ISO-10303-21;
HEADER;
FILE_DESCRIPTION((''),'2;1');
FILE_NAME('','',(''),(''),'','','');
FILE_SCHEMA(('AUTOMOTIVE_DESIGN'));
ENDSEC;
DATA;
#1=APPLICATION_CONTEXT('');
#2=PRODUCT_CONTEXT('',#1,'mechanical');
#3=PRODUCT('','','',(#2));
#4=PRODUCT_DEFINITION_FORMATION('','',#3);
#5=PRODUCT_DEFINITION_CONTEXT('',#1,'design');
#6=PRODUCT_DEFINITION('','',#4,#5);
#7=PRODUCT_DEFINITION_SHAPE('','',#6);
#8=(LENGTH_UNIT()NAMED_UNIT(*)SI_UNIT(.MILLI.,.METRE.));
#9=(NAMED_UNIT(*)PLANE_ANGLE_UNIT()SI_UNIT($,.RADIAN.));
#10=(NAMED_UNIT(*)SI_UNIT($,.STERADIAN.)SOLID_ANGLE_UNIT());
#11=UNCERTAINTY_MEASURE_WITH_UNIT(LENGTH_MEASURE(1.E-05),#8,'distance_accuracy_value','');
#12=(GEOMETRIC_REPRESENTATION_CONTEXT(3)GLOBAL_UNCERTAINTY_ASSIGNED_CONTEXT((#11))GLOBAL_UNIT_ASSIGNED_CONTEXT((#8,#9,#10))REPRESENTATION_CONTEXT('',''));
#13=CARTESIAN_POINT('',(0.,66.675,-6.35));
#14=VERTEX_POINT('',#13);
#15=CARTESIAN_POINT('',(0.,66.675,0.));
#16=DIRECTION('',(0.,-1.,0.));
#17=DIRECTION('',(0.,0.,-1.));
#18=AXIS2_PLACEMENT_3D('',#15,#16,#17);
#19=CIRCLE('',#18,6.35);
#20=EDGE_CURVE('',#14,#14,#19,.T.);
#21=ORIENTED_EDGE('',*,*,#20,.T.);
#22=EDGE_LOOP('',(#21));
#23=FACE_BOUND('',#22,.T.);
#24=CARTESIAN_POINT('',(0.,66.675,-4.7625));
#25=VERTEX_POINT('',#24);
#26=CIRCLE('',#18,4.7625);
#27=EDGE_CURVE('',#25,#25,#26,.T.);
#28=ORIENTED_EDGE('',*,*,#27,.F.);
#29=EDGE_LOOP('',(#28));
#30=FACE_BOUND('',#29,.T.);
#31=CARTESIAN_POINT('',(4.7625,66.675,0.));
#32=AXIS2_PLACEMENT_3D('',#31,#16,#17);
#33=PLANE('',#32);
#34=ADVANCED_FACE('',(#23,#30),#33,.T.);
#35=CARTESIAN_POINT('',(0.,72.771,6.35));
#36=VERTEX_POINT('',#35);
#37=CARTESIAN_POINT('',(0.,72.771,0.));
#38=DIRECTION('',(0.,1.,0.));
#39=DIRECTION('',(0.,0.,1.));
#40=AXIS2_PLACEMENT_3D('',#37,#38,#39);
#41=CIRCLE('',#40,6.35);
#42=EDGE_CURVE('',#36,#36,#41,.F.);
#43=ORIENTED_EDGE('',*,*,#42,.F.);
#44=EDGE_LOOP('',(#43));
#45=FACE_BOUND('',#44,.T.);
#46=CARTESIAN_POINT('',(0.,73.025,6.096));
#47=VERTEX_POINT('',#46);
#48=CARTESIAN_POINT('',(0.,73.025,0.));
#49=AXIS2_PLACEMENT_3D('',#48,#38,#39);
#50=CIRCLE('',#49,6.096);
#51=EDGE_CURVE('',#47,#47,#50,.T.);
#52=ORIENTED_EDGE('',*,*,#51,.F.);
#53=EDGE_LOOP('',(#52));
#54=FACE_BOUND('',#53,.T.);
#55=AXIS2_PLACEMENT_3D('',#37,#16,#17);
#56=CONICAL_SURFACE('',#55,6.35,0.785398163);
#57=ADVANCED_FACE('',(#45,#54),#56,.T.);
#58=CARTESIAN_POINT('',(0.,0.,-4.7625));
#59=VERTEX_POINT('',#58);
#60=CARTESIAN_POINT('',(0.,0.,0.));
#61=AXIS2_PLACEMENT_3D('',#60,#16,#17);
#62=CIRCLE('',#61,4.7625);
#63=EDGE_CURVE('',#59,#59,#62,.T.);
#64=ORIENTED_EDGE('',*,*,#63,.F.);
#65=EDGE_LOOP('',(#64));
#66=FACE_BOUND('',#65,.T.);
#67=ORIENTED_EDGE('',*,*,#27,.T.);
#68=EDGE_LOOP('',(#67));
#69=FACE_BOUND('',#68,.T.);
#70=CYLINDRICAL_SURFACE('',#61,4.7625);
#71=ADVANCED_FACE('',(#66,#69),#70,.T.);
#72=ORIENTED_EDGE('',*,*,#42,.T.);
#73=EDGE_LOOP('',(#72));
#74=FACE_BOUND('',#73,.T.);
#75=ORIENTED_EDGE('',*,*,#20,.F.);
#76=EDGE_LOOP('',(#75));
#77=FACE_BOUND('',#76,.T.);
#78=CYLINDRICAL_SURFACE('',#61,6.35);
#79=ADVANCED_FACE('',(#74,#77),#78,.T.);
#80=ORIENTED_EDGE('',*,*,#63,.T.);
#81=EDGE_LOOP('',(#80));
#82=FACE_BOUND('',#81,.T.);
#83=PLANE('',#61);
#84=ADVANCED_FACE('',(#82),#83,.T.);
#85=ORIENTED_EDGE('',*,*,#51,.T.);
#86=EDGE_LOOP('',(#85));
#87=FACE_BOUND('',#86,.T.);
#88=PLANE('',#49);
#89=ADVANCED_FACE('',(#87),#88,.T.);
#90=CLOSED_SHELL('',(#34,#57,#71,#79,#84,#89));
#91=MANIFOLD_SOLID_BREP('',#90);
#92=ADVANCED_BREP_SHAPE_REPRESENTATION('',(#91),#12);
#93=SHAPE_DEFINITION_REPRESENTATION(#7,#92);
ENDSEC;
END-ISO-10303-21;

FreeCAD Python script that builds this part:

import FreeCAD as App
import Part
import Sketcher
Q = App.Units.Quantity


def edges_at(feature, points):
    """Names of the edges that pass closest to the given points."""
    edges = feature.Shape.Edges
    near = lambda p: min(range(len(edges)), key=lambda i: edges[i].distToShape(Part.Vertex(*p))[0])
    return sorted({f"Edge{near(p) + 1}" for p in points})


def add_polygon(sketch, points):
    """Adds a closed chain of lines whose ends are joined by coincident constraints."""
    first, n = sketch.GeometryCount, len(points)
    for a, b in zip(points, points[1:] + points[:1]):
        sketch.addGeometry(Part.LineSegment(App.Vector(*a, 0), App.Vector(*b, 0)), False)
    for i in range(n):
        sketch.addConstraint(Sketcher.Constraint("Coincident", first + i, 2, first + (i + 1) % n, 1))

doc = App.newDocument("Part")
body = doc.addObject("PartDesign::Body", "Body")

sketch1 = body.newObject("Sketcher::SketchObject", "Sketch")
sketch1.AttachmentSupport = (doc.getObject("XY_Plane"), [""])
sketch1.MapMode = "FlatFace"
add_polygon(sketch1, [(4.8, 0), (4.8, 66.7), (6.3, 66.7), (6.3, 73), (0, 73), (0, 0)])
sketch1.addConstraint(Sketcher.Constraint("Vertical", 0))
sketch1.addConstraint(Sketcher.Constraint("Horizontal", 1))
sketch1.addConstraint(Sketcher.Constraint("Vertical", 2))
sketch1.addConstraint(Sketcher.Constraint("Horizontal", 3))
sketch1.addConstraint(Sketcher.Constraint("Vertical", 4))
sketch1.addConstraint(Sketcher.Constraint("Horizontal", 5))
sketch1.addConstraint(Sketcher.Constraint("Coincident", 4, 2, -1, 1))
sketch1.addConstraint(Sketcher.Constraint("Equal", 3, 2))
sketch1.addConstraint(Sketcher.Constraint("DistanceX", 3, 2, 3, 1, Q("0.25 in")))
sketch1.addConstraint(Sketcher.Constraint("DistanceX", 1, 1, 1, 2, Q("0.0625 in")))
sketch1.addConstraint(Sketcher.Constraint("DistanceY", 0, 1, 0, 2, Q("2.625 in")))
revolution = body.newObject("PartDesign::Revolution", "Revolution")
revolution.Profile = sketch1
revolution.ReferenceAxis = (sketch1, ["V_Axis"])
revolution.Angle = 360
doc.recompute()

chamfer = body.newObject("PartDesign::Chamfer", "Chamfer")
chamfer.Base = (revolution, edges_at(revolution, [(-6.35, 73.025, 0)]))
chamfer.Size = Q("0.01 in")

doc.recompute()
